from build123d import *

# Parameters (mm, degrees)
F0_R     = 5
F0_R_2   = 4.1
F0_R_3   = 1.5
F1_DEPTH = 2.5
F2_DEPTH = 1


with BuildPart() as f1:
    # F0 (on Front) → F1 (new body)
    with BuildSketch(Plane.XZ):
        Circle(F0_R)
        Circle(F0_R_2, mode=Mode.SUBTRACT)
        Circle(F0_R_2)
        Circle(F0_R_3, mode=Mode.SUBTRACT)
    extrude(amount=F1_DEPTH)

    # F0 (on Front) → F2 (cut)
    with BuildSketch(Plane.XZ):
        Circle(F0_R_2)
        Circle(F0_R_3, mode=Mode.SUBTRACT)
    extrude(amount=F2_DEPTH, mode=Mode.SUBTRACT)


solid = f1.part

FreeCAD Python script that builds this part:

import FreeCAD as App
import Part
import Sketcher

V = App.Vector
Q = App.Units.Quantity

doc = App.newDocument("Part")
body = doc.addObject("PartDesign::Body", "Body")

# Sketch on XZ plane
sketch1 = body.newObject("Sketcher::SketchObject", "Sketch")
sketch1.AttachmentSupport = (doc.getObject("XZ_Plane"), [""])
sketch1.MapMode = "FlatFace"
sketch1.addGeometry([
    Part.Circle(V(0, 0, 0), V(0, 0, 1), 5),
    Part.Circle(V(0, 0, 0), V(0, 0, 1), 1.5),
], False)
sketch1.addConstraint([
    Sketcher.Constraint("Coincident", 0, 3, -1, 1),
    Sketcher.Constraint("Coincident", 1, 3, -1, 1),
    Sketcher.Constraint("Diameter", 0, Q("10 mm")),
    Sketcher.Constraint("Diameter", 1, Q("3 mm")),
])
pad1 = body.newObject("PartDesign::Pad", "Pad")
pad1.Profile = sketch1
pad1.Length = 2.5

# Sketch on XZ plane
sketch2 = body.newObject("Sketcher::SketchObject", "Sketch001")
sketch2.AttachmentSupport = (doc.getObject("XZ_Plane"), [""])
sketch2.MapMode = "FlatFace"
sketch2.addGeometry([
    Part.Circle(V(0, 0, 0), V(0, 0, 1), 4.1),
    Part.Circle(V(0, 0, 0), V(0, 0, 1), 1.5),
], False)
sketch2.addConstraint([
    Sketcher.Constraint("Coincident", 0, 3, -1, 1),
    Sketcher.Constraint("Coincident", 1, 3, -1, 1),
    Sketcher.Constraint("Diameter", 1, Q("3 mm")),
    Sketcher.Constraint("Diameter", 0, Q("8.2 mm")),
])
pocket1 = body.newObject("PartDesign::Pocket", "Pocket")
pocket1.Profile = sketch2
pocket1.Length = 1
pocket1.Reversed = True

doc.recompute()
